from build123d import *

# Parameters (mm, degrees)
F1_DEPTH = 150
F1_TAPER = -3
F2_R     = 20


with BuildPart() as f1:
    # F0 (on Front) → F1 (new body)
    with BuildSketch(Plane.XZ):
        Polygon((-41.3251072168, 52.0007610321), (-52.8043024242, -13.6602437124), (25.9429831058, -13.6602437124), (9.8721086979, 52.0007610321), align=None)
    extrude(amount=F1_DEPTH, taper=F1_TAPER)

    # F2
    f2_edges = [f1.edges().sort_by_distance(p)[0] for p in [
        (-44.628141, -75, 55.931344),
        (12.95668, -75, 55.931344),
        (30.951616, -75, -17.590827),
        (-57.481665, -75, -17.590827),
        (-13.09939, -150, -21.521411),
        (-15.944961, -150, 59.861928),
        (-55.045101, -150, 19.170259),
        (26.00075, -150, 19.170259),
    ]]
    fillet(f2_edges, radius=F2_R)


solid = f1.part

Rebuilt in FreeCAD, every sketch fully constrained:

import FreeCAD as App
import Part
import Sketcher

V = App.Vector
Q = App.Units.Quantity


def edges_at(feature, points):
    """Names of the edges that pass closest to the given points."""
    edges = feature.Shape.Edges
    near = lambda p: min(range(len(edges)), key=lambda i: edges[i].distToShape(Part.Vertex(*p))[0])
    return sorted({f"Edge{near(p) + 1}" for p in points})

doc = App.newDocument("Part")
body = doc.addObject("PartDesign::Body", "Body")

# Sketch on XZ plane
sketch1 = body.newObject("Sketcher::SketchObject", "Sketch")
sketch1.AttachmentSupport = (doc.getObject("XZ_Plane"), [""])
sketch1.MapMode = "FlatFace"
sketch1.addGeometry(Part.LineSegment(V(-41, 52, 0), V(-53, -14, 0)), False)
sketch1.addGeometry(Part.LineSegment(V(-53, -14, 0), V(26, -14, 0)), False)
sketch1.addGeometry(Part.LineSegment(V(26, -14, 0), V(10, 52, 0)), False)
sketch1.addGeometry(Part.LineSegment(V(10, 52, 0), V(-41, 52, 0)), False)
sketch1.addConstraint(Sketcher.Constraint("Coincident", 0, 2, 1, 1))
sketch1.addConstraint(Sketcher.Constraint("Coincident", 1, 2, 2, 1))
sketch1.addConstraint(Sketcher.Constraint("Coincident", 2, 2, 3, 1))
sketch1.addConstraint(Sketcher.Constraint("Coincident", 3, 2, 0, 1))
sketch1.addConstraint(Sketcher.Constraint("Horizontal", 1))
sketch1.addConstraint(Sketcher.Constraint("Horizontal", 3))
sketch1.addConstraint(Sketcher.Constraint("Distance", 0, Q("66.656879 mm")))
sketch1.addConstraint(Sketcher.Constraint("DistanceX", 1, 1, 1, 2, Q("78.747286 mm")))
sketch1.addConstraint(Sketcher.Constraint("DistanceX", 3, 2, 3, 1, Q("51.197216 mm")))
sketch1.addConstraint(Sketcher.Constraint("DistanceX", -1, 1, 2, 2, Q("9.872109 mm")))
sketch1.addConstraint(Sketcher.Constraint("DistanceY", -1, 1, 2, 2, Q("52.000761 mm")))
sketch1.addConstraint(Sketcher.Constraint("DistanceX", 0, 2, 2, 2, Q("62.676411 mm")))
pad1 = body.newObject("PartDesign::Pad", "Pad")
pad1.Profile = sketch1
pad1.Length = 150
pad1.TaperAngle = 3
doc.recompute()

fillet = body.newObject("PartDesign::Fillet", "Fillet")
fillet.Base = (pad1, edges_at(pad1, [
    (-44.628, -75, 55.931),
    (12.957, -75, 55.931),
    (30.952, -75, -17.591),
    (-57.482, -75, -17.591),
    (-13.099, -150, -21.521),
    (-15.945, -150, 59.862),
    (-55.045, -150, 19.17),
    (26.001, -150, 19.17),
]))
fillet.Radius = 20

doc.recompute()
